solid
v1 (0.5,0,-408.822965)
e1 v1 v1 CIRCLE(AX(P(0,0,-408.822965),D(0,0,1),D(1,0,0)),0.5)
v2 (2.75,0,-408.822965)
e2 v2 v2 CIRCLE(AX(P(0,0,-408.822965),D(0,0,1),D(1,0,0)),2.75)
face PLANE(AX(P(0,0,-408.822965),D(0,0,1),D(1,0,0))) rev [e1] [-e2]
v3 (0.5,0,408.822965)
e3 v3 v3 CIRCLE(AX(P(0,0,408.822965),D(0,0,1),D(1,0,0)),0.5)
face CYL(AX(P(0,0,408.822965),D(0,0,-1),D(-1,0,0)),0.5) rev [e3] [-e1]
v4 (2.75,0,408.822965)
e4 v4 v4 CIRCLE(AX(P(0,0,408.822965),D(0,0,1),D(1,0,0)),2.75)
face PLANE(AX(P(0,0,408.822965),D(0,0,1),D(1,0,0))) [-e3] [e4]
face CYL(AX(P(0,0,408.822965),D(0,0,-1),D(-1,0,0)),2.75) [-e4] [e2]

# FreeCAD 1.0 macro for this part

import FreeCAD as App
import Part
import Sketcher

V = App.Vector

doc = App.newDocument("Part")
body = doc.addObject("PartDesign::Body", "Body")

sketch1 = doc.addObject("Sketcher::SketchObject", "Sketch")
body.addObject(sketch1)
sketch1.AttachmentSupport = (doc.XY_Plane, [""])
sketch1.MapMode = "FlatFace"
sketch1.addGeometry([
    Part.Circle(V(0, 0, 0), V(0, 0, 1), 2.8),
    Part.Circle(V(0, 0, 0), V(0, 0, 1), 0.5),
], False)
sketch1.addConstraint([
    Sketcher.Constraint("Coincident", 0, 3, -1, 1),
    Sketcher.Constraint("Coincident", 1, 3, -1, 1),
    Sketcher.Constraint("Diameter", 1, 1.0),
    Sketcher.Constraint("Diameter", 0, 5.5),
])
pad1 = doc.addObject("PartDesign::Pad", "Pad")
body.addObject(pad1)
pad1.Profile = sketch1
pad1.Length = 817.64593
pad1.Midplane = True

doc.recompute()
